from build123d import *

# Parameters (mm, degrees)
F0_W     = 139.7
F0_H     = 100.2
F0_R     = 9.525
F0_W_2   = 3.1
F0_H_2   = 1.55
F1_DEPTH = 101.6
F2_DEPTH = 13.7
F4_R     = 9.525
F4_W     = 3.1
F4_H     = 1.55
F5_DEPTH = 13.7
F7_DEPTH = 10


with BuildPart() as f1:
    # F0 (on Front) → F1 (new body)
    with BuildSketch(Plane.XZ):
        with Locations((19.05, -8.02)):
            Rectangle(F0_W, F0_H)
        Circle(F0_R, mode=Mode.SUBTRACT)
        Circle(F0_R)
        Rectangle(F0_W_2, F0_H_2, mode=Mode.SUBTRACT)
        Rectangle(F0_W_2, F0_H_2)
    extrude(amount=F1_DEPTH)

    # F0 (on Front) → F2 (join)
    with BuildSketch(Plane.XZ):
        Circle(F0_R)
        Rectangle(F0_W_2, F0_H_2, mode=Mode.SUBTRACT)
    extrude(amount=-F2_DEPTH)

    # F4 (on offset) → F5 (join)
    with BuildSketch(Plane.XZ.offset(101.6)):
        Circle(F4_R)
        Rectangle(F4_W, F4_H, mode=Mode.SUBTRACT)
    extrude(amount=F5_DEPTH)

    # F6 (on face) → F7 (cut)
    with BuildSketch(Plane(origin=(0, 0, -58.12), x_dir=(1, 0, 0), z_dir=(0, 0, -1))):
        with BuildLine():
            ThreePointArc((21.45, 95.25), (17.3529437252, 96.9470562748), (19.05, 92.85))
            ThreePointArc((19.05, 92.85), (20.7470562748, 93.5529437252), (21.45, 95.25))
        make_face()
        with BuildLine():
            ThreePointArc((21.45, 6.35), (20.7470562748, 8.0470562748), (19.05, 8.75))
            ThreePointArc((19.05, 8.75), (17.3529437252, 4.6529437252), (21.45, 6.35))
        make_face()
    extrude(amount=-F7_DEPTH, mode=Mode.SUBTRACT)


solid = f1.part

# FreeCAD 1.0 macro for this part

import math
import FreeCAD as App
import Part
import Sketcher
Q = App.Units.Quantity

doc = App.newDocument("Part")
body = doc.addObject("PartDesign::Body", "Body")

sketch1 = doc.addObject("Sketcher::SketchObject", "Sketch")
body.addObject(sketch1)
sketch1.AttachmentSupport = (doc.XZ_Plane, [""])
sketch1.MapMode = "FlatFace"
sketch1.addGeometry([
    Part.LineSegment(App.Vector(-51, 42, 0), App.Vector(-51, -58, 0)),
    Part.LineSegment(App.Vector(-51, -58, 0), App.Vector(89, -58, 0)),
    Part.LineSegment(App.Vector(89, -58, 0), App.Vector(89, 42, 0)),
    Part.LineSegment(App.Vector(89, 42, 0), App.Vector(-51, 42, 0)),
], False)
sketch1.addConstraint([
    Sketcher.Constraint("Coincident", 0, 2, 1, 1),
    Sketcher.Constraint("Coincident", 1, 2, 2, 1),
    Sketcher.Constraint("Coincident", 2, 2, 3, 1),
    Sketcher.Constraint("Coincident", 3, 2, 0, 1),
    Sketcher.Constraint("Vertical", 0),
    Sketcher.Constraint("Horizontal", 1),
    Sketcher.Constraint("Vertical", 2),
    Sketcher.Constraint("Horizontal", 3),
    Sketcher.Constraint("DistanceX", 1, 1, 1, 2, Q("139.7 mm")),
    Sketcher.Constraint("DistanceY", 0, 2, 0, 1, Q("100.2 mm")),
    Sketcher.Constraint("DistanceX", 0, 2, -1, 1, Q("50.8 mm")),
    Sketcher.Constraint("DistanceY", 0, 2, -1, 1, Q("58.12 mm")),
])
pad1 = doc.addObject("PartDesign::Pad", "Pad")
body.addObject(pad1)
pad1.Profile = sketch1
pad1.Length = 101.6

sketch2 = doc.addObject("Sketcher::SketchObject", "Sketch001")
body.addObject(sketch2)
sketch2.AttachmentSupport = (doc.XZ_Plane, [""])
sketch2.MapMode = "FlatFace"
sketch2.addGeometry([
    Part.Circle(App.Vector(0, 0, 0), App.Vector(0, 0, 1), 9.5),
    Part.LineSegment(App.Vector(1.6, -0.8, 0), App.Vector(-1.6, -0.8, 0)),
    Part.LineSegment(App.Vector(-1.6, -0.8, 0), App.Vector(-1.6, 0.8, 0)),
    Part.LineSegment(App.Vector(-1.6, 0.8, 0), App.Vector(1.6, 0.8, 0)),
    Part.LineSegment(App.Vector(1.6, 0.8, 0), App.Vector(1.6, -0.8, 0)),
], False)
sketch2.addConstraint([
    Sketcher.Constraint("Coincident", 1, 2, 2, 1),
    Sketcher.Constraint("Coincident", 2, 2, 3, 1),
    Sketcher.Constraint("Coincident", 3, 2, 4, 1),
    Sketcher.Constraint("Coincident", 4, 2, 1, 1),
    Sketcher.Constraint("Horizontal", 1),
    Sketcher.Constraint("Vertical", 2),
    Sketcher.Constraint("Horizontal", 3),
    Sketcher.Constraint("Vertical", 4),
    Sketcher.Constraint("Coincident", 0, 3, -1, 1),
    Sketcher.Constraint("Symmetric", 1, 2, 3, 2, -1, 1),
    Sketcher.Constraint("Diameter", 0, Q("19.05 mm")),
    Sketcher.Constraint("DistanceX", 1, 2, 1, 1, Q("3.1 mm")),
    Sketcher.Constraint("DistanceY", 2, 1, 2, 2, Q("1.55 mm")),
])
pad2 = doc.addObject("PartDesign::Pad", "Pad001")
body.addObject(pad2)
pad2.Profile = sketch2
pad2.Length = 13.7
pad2.Reversed = True

sketch3 = doc.addObject("Sketcher::SketchObject", "Sketch002")
body.addObject(sketch3)
sketch3.AttachmentSupport = (doc.XZ_Plane, [""])
sketch3.MapMode = "FlatFace"
sketch3.AttachmentOffset = App.Placement(App.Vector(0, 0, 101.6), App.Rotation())
sketch3.addGeometry([
    Part.Circle(App.Vector(0, 0, 0), App.Vector(0, 0, 1), 9.5),
    Part.LineSegment(App.Vector(1.6, -0.8, 0), App.Vector(-1.6, -0.8, 0)),
    Part.LineSegment(App.Vector(-1.6, -0.8, 0), App.Vector(-1.6, 0.8, 0)),
    Part.LineSegment(App.Vector(-1.6, 0.8, 0), App.Vector(1.6, 0.8, 0)),
    Part.LineSegment(App.Vector(1.6, 0.8, 0), App.Vector(1.6, -0.8, 0)),
], False)
sketch3.addConstraint([
    Sketcher.Constraint("Coincident", 1, 2, 2, 1),
    Sketcher.Constraint("Coincident", 2, 2, 3, 1),
    Sketcher.Constraint("Coincident", 3, 2, 4, 1),
    Sketcher.Constraint("Coincident", 4, 2, 1, 1),
    Sketcher.Constraint("Horizontal", 1),
    Sketcher.Constraint("Vertical", 2),
    Sketcher.Constraint("Horizontal", 3),
    Sketcher.Constraint("Vertical", 4),
    Sketcher.Constraint("Coincident", 0, 3, -1, 1),
    Sketcher.Constraint("Symmetric", 1, 2, 3, 2, -1, 1),
    Sketcher.Constraint("Diameter", 0, Q("19.05 mm")),
    Sketcher.Constraint("DistanceX", 1, 2, 1, 1, Q("3.1 mm")),
    Sketcher.Constraint("DistanceY", 2, 1, 2, 2, Q("1.55 mm")),
])
pad3 = doc.addObject("PartDesign::Pad", "Pad002")
body.addObject(pad3)
pad3.Profile = sketch3
pad3.Length = 13.7

sketch4 = doc.addObject("Sketcher::SketchObject", "Sketch003")
body.addObject(sketch4)
sketch4.AttachmentSupport = (doc.XY_Plane, [""])
sketch4.MapMode = "FlatFace"
sketch4.AttachmentOffset = App.Placement(App.Vector(0, 0, -58.12), App.Rotation())
sketch4.addGeometry([
    Part.ArcOfCircle(Part.Circle(App.Vector(19.1, -95.2, 0), App.Vector(0, 0, 1), 2.4), math.radians(90), math.radians(360)),
    Part.ArcOfCircle(Part.Circle(App.Vector(19.1, -95.2, 0), App.Vector(0, 0, 1), 2.4), math.radians(0), math.radians(90)),
    Part.ArcOfCircle(Part.Circle(App.Vector(19.1, -6.3, 0), App.Vector(0, 0, 1), 2.4), math.radians(-90), math.radians(0)),
    Part.ArcOfCircle(Part.Circle(App.Vector(19.1, -6.3, 0), App.Vector(0, 0, 1), 2.4), math.radians(0), math.radians(270)),
], False)
sketch4.addConstraint([
    Sketcher.Constraint("Tangent", 0, 1, 1, 2),
    Sketcher.Constraint("Coincident", 1, 1, 0, 2),
    Sketcher.Constraint("Tangent", 2, 1, 3, 2),
    Sketcher.Constraint("Coincident", 3, 1, 2, 2),
    Sketcher.Constraint("Equal", 1, 2),
    Sketcher.Constraint("Horizontal", 0, 3, 1, 1),
    Sketcher.Constraint("Horizontal", 2, 3, 3, 1),
    Sketcher.Constraint("Vertical", 1, 3, 2, 3),
    Sketcher.Constraint("Vertical", 3, 3, 0, 1),
    Sketcher.Constraint("Vertical", 0, 1, 2, 1),
    Sketcher.Constraint("Radius", 0, Q("2.4 mm")),
    Sketcher.Constraint("DistanceY", 0, 3, 2, 3, Q("88.9 mm")),
    Sketcher.Constraint("DistanceX", -1, 1, 0, 3, Q("19.05 mm")),
    Sketcher.Constraint("DistanceY", 0, 3, -1, 1, Q("95.25 mm")),
])
pocket1 = doc.addObject("PartDesign::Pocket", "Pocket")
body.addObject(pocket1)
pocket1.Profile = sketch4
pocket1.Length = 10
pocket1.Reversed = True

doc.recompute()
